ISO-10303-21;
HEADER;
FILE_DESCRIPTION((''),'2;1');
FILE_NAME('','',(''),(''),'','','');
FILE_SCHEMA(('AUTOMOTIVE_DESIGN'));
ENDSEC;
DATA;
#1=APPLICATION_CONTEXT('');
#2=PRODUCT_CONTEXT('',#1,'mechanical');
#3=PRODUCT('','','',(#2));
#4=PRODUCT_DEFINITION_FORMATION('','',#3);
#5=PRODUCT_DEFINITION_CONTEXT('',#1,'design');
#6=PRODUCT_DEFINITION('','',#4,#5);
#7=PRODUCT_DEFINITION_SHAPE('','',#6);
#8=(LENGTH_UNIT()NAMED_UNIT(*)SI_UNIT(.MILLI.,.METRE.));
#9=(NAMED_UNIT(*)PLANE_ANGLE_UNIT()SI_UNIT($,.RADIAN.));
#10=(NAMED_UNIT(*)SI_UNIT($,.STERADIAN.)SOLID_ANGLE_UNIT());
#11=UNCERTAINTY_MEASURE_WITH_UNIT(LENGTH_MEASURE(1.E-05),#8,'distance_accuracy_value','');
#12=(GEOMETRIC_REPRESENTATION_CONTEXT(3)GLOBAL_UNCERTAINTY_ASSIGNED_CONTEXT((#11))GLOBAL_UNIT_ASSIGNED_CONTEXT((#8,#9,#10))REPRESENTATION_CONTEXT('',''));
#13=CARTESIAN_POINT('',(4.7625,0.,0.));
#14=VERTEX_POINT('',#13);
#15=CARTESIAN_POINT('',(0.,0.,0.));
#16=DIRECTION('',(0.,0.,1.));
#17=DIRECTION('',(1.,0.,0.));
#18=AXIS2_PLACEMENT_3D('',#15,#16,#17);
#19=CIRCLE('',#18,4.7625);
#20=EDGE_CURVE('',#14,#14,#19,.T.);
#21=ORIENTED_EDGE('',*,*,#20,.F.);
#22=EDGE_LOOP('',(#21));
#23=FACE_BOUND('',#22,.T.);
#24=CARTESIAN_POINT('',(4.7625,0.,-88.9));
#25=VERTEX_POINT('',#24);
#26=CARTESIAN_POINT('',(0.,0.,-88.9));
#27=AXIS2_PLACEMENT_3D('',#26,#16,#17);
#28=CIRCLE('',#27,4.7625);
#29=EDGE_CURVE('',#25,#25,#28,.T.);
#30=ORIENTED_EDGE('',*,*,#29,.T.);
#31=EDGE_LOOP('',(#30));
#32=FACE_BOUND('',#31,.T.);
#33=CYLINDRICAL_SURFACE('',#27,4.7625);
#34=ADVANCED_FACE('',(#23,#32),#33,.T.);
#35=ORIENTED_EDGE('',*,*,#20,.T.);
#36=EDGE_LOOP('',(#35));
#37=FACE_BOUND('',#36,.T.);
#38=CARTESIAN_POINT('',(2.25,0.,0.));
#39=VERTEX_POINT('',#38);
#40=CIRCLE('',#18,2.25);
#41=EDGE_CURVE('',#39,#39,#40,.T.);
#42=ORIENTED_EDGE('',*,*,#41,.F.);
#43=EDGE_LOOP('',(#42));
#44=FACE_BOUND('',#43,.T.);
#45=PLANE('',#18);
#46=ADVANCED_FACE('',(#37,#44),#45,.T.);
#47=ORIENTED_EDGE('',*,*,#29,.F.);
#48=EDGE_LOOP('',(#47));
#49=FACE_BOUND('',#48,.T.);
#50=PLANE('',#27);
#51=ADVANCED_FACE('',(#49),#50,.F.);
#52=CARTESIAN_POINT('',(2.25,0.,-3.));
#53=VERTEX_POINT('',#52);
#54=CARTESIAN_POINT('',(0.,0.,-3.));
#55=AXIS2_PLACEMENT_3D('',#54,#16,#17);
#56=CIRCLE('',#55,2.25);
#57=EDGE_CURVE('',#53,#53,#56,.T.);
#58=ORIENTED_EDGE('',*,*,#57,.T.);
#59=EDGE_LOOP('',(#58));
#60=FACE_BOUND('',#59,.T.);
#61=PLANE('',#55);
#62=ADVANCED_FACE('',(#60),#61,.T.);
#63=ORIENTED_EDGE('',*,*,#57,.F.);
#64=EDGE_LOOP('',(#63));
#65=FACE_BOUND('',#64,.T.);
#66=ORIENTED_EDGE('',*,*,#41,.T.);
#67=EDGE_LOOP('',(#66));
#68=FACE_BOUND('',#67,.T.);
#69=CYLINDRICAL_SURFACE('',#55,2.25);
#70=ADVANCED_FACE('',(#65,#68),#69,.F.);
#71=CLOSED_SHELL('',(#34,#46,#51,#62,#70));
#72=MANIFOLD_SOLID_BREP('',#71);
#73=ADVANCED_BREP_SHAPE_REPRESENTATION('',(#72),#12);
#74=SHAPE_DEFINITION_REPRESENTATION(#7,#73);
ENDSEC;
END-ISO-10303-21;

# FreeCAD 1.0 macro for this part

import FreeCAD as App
import Part
import Sketcher
from FreeCAD import Vector

doc = App.newDocument("Part")
params = doc.addObject("Spreadsheet::Sheet", "Params")
for row, (alias, value) in enumerate([
    ("pad1_length", "88.9 mm"),
    ("sketch2_diameter", "4.5 mm"),
    ("pocket1_length", "3 mm"),
], start=1):
    params.set(f"A{row}", alias)
    params.set(f"B{row}", "=" + value)
    params.setAlias(f"B{row}", alias)

body = doc.addObject("PartDesign::Body", "Body")

sketch1 = body.newObject("Sketcher::SketchObject", "Sketch")
sketch1.AttachmentSupport = (doc.getObject("XY_Plane"), [""])
sketch1.MapMode = "FlatFace"
sketch1.addGeometry(Part.Circle(Vector(0, 0, 0), Vector(0, 0, 1), 4.7625), False)
sketch1.addConstraint(Sketcher.Constraint("Coincident", 0, 3, -1, 1))
sketch1.addConstraint(Sketcher.Constraint("Diameter", 0, 9.525))
pad1 = body.newObject("PartDesign::Pad", "Pad")
pad1.Profile = sketch1
pad1.setExpression("Length", "Params.pad1_length")
pad1.Reversed = True

sketch2 = body.newObject("Sketcher::SketchObject", "Sketch001")
sketch2.AttachmentSupport = (doc.getObject("XY_Plane"), [""])
sketch2.MapMode = "FlatFace"
sketch2.addGeometry(Part.Circle(Vector(0, 0, 0), Vector(0, 0, 1), 2.25), False)
sketch2.addConstraint(Sketcher.Constraint("Coincident", 0, 3, -1, 1))
sketch2.addConstraint(Sketcher.Constraint("Diameter", 0, 4.5))
sketch2.setExpression("Constraints[1]", "Params.sketch2_diameter")
pocket1 = body.newObject("PartDesign::Pocket", "Pocket")
pocket1.Profile = sketch2
pocket1.setExpression("Length", "Params.pocket1_length")

doc.recompute()
